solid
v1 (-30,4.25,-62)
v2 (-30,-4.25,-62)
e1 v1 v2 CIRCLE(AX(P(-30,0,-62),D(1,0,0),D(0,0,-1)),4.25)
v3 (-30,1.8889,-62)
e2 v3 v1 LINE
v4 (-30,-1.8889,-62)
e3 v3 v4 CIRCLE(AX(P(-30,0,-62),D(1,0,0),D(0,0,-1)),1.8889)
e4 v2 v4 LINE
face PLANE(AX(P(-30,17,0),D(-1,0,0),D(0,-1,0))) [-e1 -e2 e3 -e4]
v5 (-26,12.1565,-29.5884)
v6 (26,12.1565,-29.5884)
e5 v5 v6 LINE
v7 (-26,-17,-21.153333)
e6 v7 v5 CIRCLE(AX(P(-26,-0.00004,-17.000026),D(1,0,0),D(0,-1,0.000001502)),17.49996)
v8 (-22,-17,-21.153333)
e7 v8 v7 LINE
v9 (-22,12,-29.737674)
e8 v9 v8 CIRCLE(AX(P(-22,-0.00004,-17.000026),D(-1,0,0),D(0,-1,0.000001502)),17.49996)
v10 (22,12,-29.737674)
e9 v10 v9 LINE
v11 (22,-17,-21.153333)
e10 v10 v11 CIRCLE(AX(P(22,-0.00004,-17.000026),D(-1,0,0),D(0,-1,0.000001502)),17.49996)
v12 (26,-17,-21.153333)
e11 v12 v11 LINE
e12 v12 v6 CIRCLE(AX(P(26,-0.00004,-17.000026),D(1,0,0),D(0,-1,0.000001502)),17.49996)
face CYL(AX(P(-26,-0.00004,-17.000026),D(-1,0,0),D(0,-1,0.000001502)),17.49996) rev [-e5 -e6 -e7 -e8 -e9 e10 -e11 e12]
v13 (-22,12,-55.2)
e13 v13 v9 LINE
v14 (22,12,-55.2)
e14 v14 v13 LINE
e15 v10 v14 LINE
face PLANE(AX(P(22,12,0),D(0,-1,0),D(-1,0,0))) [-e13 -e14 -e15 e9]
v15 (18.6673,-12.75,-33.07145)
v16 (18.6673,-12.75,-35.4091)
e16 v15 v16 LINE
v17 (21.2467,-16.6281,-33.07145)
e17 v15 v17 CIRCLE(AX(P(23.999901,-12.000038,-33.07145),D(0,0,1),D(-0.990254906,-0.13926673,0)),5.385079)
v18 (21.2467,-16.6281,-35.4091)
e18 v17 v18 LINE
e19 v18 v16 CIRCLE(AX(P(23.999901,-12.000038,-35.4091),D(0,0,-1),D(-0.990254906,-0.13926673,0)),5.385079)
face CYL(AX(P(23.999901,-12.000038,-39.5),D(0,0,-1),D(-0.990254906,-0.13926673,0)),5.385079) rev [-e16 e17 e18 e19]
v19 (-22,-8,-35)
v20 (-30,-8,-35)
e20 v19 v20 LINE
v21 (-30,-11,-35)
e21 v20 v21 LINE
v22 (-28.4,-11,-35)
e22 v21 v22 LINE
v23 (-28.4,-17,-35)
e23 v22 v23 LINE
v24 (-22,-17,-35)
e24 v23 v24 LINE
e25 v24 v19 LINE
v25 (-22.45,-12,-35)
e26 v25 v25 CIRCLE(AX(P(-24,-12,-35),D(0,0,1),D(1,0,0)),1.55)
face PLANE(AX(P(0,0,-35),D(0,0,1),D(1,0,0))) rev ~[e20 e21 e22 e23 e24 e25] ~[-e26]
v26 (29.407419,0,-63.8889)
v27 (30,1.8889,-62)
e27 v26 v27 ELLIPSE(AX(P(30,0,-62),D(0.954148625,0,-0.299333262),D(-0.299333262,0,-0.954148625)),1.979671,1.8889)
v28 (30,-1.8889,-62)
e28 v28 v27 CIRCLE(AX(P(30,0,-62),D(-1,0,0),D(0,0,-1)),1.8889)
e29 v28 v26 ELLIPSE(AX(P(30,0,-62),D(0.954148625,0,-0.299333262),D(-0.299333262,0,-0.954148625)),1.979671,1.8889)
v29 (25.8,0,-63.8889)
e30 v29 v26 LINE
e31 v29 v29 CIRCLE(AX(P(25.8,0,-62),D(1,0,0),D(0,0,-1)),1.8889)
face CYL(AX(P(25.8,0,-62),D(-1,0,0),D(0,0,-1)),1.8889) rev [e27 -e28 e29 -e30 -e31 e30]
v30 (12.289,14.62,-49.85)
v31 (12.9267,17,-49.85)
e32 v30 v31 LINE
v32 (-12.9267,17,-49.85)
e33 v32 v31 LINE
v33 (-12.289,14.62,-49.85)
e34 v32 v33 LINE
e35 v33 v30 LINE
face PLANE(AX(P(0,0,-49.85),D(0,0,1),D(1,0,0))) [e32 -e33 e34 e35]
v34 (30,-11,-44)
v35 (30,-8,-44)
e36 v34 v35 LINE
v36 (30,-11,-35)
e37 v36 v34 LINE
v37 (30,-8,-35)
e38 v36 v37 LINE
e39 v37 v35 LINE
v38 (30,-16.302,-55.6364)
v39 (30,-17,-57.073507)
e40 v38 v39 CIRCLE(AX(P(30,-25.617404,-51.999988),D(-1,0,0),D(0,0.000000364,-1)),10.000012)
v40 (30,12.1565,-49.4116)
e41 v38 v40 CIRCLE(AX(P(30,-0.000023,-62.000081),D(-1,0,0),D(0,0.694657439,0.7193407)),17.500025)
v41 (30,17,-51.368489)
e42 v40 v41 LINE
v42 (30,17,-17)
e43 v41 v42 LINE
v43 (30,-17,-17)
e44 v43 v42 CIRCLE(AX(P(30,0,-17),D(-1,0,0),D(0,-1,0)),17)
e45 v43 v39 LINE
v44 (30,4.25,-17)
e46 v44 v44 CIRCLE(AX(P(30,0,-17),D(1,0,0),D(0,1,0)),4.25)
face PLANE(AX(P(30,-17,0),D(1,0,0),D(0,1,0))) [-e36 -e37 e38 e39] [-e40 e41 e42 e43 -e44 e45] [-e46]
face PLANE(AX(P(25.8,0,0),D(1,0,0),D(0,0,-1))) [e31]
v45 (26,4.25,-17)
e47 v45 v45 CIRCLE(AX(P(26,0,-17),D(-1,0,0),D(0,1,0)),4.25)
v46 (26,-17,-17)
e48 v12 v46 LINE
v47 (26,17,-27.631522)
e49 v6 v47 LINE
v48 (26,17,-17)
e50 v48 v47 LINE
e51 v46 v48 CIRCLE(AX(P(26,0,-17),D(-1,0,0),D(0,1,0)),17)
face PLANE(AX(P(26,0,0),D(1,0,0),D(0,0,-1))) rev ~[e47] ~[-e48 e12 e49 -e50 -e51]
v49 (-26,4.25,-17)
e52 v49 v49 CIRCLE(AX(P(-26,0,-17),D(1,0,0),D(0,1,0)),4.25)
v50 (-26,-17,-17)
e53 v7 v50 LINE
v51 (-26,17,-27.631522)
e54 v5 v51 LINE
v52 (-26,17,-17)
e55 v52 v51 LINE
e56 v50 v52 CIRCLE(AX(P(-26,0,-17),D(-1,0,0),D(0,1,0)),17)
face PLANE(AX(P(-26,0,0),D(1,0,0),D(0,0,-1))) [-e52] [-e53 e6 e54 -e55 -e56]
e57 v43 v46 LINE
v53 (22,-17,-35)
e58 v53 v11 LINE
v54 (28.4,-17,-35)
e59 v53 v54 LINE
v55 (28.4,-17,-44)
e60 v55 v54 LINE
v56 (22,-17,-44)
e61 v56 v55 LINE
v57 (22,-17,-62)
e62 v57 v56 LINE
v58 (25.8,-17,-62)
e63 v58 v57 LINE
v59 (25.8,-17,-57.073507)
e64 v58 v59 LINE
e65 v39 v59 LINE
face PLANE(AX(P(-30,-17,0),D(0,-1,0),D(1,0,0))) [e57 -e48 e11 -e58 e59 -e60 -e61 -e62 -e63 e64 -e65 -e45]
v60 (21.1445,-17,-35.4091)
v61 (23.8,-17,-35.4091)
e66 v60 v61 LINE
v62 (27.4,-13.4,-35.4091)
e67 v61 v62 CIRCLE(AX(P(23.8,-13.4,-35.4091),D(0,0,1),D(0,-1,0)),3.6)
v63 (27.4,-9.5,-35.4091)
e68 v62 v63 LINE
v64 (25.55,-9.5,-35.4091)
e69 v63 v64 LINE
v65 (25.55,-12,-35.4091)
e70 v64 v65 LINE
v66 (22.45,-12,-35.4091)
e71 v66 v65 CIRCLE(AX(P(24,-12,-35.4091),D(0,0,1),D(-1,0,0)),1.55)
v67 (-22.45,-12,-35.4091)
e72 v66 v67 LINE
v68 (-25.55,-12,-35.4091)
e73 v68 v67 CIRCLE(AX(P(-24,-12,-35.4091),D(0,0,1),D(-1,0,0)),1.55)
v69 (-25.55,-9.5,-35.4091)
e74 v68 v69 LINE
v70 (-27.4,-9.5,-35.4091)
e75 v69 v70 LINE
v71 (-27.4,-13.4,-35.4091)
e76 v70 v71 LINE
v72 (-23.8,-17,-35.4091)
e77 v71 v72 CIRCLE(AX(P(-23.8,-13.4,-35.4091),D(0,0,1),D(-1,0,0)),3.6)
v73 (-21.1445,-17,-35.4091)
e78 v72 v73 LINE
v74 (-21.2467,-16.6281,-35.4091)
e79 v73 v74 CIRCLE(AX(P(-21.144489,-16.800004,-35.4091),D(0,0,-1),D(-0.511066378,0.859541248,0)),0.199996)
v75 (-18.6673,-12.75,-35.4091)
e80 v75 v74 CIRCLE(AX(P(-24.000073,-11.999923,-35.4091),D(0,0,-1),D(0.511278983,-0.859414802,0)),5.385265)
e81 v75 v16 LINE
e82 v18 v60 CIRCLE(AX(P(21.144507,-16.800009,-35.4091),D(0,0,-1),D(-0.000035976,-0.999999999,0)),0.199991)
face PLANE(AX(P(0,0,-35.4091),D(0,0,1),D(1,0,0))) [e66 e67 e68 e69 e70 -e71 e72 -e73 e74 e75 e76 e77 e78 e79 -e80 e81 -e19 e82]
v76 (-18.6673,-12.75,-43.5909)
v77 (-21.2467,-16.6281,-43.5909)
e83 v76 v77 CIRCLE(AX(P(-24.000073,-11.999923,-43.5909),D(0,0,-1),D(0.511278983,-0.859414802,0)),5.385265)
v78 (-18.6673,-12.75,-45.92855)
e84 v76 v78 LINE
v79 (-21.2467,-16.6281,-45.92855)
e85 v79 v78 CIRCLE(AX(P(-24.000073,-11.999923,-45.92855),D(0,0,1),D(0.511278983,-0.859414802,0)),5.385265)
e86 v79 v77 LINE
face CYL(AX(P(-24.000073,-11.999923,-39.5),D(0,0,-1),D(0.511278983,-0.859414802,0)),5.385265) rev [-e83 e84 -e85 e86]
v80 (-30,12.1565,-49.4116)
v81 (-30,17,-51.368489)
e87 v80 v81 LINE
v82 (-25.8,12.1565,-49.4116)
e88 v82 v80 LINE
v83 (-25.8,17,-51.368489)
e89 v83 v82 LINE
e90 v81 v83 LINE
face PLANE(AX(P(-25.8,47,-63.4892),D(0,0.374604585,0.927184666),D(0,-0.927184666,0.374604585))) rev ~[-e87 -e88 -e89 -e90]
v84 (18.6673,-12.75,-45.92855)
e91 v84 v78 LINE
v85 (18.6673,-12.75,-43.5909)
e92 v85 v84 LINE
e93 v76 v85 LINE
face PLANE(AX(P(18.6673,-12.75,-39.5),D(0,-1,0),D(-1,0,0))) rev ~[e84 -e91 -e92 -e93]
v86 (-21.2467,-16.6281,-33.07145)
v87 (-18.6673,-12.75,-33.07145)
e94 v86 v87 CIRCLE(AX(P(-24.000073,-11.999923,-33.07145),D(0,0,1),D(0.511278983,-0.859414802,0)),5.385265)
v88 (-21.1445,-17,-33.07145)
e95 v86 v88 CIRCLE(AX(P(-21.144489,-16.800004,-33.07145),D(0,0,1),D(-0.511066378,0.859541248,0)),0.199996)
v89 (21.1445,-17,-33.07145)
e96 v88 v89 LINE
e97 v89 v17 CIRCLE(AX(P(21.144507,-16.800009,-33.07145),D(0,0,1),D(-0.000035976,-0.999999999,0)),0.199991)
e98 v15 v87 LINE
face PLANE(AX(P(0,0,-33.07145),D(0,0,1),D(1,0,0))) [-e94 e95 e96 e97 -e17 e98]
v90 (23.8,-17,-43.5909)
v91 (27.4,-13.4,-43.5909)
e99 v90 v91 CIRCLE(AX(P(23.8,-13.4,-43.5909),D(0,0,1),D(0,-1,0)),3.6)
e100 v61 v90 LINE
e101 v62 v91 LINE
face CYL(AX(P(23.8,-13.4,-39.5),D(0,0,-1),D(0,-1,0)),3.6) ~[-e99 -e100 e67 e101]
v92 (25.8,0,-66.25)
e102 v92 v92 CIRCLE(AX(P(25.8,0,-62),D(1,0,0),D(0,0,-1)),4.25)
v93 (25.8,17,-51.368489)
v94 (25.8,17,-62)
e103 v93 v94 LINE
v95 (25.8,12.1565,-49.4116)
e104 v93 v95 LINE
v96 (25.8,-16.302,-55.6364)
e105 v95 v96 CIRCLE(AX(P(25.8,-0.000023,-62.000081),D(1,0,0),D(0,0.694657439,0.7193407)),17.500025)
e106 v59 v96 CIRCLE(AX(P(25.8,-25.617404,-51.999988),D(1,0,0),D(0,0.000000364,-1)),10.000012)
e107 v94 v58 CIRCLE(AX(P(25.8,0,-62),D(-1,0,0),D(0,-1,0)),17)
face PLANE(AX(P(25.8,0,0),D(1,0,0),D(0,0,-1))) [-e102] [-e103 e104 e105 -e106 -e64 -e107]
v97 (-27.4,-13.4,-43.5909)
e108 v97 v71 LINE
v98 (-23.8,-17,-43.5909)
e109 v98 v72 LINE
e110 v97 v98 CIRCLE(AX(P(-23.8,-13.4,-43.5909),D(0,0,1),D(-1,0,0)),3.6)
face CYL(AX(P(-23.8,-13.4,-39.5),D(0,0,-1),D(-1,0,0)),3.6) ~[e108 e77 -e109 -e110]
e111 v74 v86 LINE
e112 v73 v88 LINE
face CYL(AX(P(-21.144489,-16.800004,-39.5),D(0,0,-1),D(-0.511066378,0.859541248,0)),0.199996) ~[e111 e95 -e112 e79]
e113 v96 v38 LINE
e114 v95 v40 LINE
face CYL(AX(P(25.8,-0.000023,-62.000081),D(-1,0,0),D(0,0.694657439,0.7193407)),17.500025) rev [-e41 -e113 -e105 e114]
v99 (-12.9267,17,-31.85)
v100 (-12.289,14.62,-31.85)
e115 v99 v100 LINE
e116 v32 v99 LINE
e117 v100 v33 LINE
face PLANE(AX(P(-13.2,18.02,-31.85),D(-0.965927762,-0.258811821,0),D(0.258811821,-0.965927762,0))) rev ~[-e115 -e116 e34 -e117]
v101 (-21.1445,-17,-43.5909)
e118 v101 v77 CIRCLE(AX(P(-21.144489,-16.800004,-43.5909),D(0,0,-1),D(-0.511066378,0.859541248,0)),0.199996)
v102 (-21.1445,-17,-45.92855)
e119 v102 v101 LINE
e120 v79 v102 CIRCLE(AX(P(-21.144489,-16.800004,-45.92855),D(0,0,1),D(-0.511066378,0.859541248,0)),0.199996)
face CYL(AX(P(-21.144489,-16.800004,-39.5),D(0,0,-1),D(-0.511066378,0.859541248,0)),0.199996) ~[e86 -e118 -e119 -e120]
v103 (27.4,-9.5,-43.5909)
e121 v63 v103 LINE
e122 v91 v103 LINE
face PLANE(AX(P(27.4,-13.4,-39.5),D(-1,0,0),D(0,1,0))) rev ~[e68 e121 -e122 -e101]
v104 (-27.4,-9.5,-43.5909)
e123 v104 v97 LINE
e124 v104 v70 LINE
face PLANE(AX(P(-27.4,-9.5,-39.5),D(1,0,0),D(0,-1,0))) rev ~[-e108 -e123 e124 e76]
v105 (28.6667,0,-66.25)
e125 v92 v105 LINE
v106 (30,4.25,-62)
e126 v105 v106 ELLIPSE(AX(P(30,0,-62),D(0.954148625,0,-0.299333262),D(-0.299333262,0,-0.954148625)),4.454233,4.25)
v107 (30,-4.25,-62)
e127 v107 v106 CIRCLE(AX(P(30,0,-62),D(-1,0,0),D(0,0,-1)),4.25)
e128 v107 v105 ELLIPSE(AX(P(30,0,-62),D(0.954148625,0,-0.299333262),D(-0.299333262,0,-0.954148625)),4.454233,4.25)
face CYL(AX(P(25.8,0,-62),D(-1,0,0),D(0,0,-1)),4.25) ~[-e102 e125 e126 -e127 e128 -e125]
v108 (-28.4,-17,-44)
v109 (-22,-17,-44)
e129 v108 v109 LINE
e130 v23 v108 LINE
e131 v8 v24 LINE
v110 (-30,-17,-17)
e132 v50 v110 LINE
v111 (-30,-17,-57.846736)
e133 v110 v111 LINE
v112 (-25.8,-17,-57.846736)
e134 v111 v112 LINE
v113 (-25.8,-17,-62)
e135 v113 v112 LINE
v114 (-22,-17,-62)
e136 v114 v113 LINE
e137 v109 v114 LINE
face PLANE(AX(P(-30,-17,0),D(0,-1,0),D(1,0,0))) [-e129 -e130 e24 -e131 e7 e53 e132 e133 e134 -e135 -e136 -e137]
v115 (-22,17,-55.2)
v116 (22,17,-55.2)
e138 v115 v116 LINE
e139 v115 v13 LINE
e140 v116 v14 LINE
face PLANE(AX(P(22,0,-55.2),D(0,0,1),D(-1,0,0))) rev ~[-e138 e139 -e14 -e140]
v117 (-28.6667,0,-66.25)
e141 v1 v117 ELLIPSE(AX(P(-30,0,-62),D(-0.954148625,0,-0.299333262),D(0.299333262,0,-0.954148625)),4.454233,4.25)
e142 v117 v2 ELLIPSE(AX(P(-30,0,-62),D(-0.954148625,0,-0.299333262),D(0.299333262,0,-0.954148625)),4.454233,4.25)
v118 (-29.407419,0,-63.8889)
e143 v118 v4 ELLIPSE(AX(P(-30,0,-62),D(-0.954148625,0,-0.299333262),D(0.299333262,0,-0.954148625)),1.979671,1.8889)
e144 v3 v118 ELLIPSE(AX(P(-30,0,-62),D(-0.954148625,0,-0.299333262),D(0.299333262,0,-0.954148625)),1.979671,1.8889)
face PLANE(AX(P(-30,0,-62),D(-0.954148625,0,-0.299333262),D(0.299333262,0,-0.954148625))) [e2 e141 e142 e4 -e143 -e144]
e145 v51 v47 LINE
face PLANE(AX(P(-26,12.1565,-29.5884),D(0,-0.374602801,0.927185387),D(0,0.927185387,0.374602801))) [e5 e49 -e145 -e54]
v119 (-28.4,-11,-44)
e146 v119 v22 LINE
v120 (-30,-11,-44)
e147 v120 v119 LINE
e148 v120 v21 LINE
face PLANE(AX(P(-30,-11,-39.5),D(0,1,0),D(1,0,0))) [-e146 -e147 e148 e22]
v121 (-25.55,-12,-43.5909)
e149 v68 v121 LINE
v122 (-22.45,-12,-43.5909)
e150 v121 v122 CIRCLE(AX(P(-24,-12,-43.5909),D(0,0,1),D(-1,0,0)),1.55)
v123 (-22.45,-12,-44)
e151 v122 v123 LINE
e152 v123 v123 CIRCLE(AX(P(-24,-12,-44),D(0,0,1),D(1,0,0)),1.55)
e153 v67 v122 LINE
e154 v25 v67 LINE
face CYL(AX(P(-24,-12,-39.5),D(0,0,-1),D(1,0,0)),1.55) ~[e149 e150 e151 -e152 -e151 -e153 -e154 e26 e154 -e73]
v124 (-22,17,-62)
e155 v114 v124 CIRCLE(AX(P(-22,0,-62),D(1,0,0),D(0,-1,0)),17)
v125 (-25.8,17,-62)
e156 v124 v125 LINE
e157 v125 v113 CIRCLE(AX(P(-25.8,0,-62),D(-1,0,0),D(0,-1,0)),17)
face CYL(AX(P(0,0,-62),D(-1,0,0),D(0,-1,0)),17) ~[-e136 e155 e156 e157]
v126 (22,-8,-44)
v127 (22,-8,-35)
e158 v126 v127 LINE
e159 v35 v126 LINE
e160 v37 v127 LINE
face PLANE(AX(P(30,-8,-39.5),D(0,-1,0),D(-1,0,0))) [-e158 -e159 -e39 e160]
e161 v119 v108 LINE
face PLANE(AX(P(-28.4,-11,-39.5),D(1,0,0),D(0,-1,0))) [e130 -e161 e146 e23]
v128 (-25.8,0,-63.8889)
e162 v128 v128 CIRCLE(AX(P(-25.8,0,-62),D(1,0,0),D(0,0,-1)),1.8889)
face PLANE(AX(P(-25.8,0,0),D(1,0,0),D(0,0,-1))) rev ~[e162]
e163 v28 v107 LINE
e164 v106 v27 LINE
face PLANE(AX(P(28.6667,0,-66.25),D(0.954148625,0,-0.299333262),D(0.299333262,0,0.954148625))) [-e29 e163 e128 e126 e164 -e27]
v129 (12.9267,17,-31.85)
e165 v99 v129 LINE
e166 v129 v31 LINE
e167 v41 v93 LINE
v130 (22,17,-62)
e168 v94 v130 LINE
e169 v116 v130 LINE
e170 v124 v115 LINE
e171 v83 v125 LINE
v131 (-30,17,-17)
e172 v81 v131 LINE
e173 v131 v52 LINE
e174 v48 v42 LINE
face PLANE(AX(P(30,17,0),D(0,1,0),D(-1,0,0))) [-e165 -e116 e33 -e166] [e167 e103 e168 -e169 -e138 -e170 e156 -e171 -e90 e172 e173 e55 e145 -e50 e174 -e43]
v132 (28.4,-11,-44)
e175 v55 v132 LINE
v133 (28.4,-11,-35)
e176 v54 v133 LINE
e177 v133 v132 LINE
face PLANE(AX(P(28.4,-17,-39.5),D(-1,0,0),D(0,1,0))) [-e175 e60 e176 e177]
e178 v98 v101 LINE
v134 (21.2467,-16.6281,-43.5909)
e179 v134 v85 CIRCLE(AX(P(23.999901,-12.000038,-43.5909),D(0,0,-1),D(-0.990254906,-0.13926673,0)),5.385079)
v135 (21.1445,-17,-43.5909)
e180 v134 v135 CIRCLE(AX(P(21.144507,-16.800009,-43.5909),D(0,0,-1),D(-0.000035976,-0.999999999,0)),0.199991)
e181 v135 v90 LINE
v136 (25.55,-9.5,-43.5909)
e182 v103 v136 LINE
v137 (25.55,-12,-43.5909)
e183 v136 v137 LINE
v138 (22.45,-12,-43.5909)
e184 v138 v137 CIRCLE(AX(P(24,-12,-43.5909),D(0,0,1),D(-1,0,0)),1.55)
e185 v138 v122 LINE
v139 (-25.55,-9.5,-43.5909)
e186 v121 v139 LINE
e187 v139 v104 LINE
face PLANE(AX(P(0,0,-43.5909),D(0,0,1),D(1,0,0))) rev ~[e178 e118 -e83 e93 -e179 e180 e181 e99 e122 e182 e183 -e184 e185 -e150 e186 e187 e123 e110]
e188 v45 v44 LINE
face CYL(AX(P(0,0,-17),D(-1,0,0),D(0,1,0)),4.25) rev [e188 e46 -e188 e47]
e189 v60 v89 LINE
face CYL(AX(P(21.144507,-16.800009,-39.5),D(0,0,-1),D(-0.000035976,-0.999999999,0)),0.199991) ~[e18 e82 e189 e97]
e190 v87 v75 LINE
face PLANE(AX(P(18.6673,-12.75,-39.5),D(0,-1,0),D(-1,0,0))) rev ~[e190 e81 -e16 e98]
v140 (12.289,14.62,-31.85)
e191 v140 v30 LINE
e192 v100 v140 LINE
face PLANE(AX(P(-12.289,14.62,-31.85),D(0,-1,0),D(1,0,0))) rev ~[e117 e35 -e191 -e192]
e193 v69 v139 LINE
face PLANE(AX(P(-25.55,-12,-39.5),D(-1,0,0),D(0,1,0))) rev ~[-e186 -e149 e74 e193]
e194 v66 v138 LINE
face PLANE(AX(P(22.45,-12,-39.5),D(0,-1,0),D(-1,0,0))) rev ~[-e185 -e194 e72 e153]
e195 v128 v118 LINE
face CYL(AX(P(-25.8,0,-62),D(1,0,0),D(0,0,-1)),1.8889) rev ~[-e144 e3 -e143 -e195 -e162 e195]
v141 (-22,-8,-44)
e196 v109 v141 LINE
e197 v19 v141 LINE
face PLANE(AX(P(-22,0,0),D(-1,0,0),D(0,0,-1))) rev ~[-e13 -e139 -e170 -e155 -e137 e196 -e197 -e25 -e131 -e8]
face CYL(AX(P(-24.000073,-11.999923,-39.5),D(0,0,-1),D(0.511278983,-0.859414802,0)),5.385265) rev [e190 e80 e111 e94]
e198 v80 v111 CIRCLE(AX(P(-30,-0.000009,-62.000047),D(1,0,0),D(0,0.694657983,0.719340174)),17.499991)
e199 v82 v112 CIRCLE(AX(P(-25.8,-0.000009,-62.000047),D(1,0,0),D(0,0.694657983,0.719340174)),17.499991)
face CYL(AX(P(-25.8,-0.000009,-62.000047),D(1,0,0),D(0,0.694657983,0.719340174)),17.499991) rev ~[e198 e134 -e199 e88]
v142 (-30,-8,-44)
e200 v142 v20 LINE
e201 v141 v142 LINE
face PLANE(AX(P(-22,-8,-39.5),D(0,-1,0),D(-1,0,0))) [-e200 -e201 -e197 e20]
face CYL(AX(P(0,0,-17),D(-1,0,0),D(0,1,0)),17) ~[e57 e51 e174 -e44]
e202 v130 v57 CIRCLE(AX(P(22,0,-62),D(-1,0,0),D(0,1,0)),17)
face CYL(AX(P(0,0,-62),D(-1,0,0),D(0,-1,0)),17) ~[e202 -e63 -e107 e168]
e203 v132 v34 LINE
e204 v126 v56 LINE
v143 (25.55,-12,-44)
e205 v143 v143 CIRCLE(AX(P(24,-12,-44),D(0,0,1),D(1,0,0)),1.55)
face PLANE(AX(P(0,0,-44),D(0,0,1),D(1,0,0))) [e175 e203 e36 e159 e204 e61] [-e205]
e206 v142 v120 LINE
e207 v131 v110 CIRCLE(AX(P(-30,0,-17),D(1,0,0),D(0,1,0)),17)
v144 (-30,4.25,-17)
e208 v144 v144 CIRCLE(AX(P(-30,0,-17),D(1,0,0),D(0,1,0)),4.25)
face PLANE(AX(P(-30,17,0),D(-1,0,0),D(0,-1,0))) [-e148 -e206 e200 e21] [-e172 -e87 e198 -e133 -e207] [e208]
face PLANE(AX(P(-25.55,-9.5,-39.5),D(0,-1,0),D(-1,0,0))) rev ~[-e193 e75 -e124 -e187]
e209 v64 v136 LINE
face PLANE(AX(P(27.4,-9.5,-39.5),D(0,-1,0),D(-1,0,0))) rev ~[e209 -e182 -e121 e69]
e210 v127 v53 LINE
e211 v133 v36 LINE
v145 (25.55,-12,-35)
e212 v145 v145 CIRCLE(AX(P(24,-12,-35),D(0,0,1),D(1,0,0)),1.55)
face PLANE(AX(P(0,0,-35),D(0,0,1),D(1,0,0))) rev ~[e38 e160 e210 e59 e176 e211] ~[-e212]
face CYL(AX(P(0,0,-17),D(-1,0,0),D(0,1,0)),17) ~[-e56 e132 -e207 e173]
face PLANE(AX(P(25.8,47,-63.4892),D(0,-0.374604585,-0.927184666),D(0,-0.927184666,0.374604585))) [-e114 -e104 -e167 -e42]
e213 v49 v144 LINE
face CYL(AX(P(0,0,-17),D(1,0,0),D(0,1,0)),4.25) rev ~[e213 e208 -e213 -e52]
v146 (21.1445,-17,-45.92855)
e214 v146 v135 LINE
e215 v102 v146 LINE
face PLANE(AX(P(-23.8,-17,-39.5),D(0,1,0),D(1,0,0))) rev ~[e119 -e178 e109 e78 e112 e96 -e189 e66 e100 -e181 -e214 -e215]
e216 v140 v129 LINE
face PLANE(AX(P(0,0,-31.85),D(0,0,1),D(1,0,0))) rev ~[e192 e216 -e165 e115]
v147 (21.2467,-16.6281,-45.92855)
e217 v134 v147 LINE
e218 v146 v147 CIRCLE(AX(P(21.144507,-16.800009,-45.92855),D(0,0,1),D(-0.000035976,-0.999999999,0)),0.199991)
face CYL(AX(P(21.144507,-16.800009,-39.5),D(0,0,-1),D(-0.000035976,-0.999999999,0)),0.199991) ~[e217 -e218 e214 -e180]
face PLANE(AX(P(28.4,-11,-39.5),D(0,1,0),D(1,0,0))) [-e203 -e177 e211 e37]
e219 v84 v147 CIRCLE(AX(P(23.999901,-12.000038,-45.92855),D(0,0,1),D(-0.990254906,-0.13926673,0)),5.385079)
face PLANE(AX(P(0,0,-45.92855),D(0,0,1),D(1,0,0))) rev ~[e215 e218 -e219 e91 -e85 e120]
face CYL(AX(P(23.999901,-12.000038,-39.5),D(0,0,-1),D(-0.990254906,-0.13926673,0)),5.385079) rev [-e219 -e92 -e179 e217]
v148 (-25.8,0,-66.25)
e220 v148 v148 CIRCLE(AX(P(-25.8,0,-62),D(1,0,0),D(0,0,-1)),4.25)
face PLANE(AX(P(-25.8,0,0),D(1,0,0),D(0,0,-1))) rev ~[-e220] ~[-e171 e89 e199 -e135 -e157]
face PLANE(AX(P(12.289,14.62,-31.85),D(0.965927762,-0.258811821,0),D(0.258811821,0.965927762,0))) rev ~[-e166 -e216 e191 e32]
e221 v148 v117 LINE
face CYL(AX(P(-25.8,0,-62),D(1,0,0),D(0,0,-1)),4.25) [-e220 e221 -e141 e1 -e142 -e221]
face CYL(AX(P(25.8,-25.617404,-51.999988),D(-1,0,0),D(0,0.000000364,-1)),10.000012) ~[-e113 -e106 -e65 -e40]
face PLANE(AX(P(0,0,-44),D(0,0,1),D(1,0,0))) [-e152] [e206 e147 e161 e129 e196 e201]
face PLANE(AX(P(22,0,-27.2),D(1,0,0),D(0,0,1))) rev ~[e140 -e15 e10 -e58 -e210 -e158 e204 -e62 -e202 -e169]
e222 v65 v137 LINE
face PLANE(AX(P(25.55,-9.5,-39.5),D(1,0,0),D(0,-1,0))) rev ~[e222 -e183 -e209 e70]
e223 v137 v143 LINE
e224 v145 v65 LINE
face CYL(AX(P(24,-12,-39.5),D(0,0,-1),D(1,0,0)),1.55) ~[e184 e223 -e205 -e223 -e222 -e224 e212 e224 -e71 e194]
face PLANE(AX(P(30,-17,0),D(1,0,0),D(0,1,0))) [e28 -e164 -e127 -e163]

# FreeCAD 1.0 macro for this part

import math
import FreeCAD as App
import Part
import Sketcher

V = App.Vector
Q = App.Units.Quantity


def add_polygon(sketch, points):
    """Adds a closed chain of lines whose ends are joined by coincident constraints."""
    first, n = sketch.GeometryCount, len(points)
    for a, b in zip(points, points[1:] + points[:1]):
        sketch.addGeometry(Part.LineSegment(App.Vector(*a, 0), App.Vector(*b, 0)), False)
    for i in range(n):
        sketch.addConstraint(Sketcher.Constraint("Coincident", first + i, 2, first + (i + 1) % n, 1))

doc = App.newDocument("Part")
body = doc.addObject("PartDesign::Body", "Body")

# Sketch on XY plane
sketch1 = body.newObject("Sketcher::SketchObject", "Sketch")
sketch1.AttachmentSupport = (doc.getObject("XY_Plane"), [""])
sketch1.MapMode = "FlatFace"
add_polygon(sketch1, [(30, 17), (-30, 17), (-30, -17), (30, -17)])  # lines 0-3
sketch1.addConstraint([
    Sketcher.Constraint("Horizontal", 0),
    Sketcher.Constraint("Vertical", 1),
    Sketcher.Constraint("Horizontal", 2),
    Sketcher.Constraint("Vertical", 3),
    Sketcher.Constraint("Symmetric", 0, 2, 2, 2, -1, 1),
    Sketcher.Constraint("DistanceX", 0, 2, 0, 1, Q("60 mm")),
    Sketcher.Constraint("DistanceY", 1, 2, 1, 1, Q("34 mm")),
])
pad1 = body.newObject("PartDesign::Pad", "Pad")
pad1.Profile = sketch1
pad1.Length = 79
pad1.Reversed = True

# Sketch on XY plane
sketch2 = body.newObject("Sketcher::SketchObject", "Sketch001")
sketch2.AttachmentSupport = (doc.getObject("XY_Plane"), [""])
sketch2.MapMode = "FlatFace"
add_polygon(sketch2, [(22, 12), (-22, 12), (-22, -17), (22, -17)])  # lines 0-3
sketch2.addConstraint([
    Sketcher.Constraint("Horizontal", 0),
    Sketcher.Constraint("Vertical", 1),
    Sketcher.Constraint("Horizontal", 2),
    Sketcher.Constraint("Vertical", 3),
    Sketcher.Constraint("DistanceX", 0, 2, 0, 1, Q("44 mm")),
    Sketcher.Constraint("DistanceY", 1, 2, 1, 1, Q("29 mm")),
    Sketcher.Constraint("DistanceX", 0, 2, -1, 1, Q("22 mm")),
    Sketcher.Constraint("DistanceY", -1, 1, 0, 2, Q("12 mm")),
])
pocket1 = body.newObject("PartDesign::Pocket", "Pocket")
pocket1.Profile = sketch2
pocket1.Length = 158
pocket1.Midplane = True

# Sketch on XY plane
sketch3 = body.newObject("Sketcher::SketchObject", "Sketch002")
sketch3.AttachmentSupport = (doc.getObject("XY_Plane"), [""])
sketch3.MapMode = "FlatFace"
sketch3.AttachmentOffset = App.Placement(V(0, 0, -31.85), App.Rotation())
add_polygon(sketch3, [(13.2, 18), (-13.2, 18), (-12.3, 14.6), (12.3, 14.6)])  # lines 0-3
sketch3.addConstraint([
    Sketcher.Constraint("Horizontal", 0),
    Sketcher.Constraint("Horizontal", 2),
    Sketcher.Constraint("Equal", 1, 3),
    Sketcher.Constraint("Angle", 1, Q("-75.0004 deg")),
    Sketcher.Constraint("DistanceX", 0, 2, 0, 1, Q("26.4 mm")),
    Sketcher.Constraint("DistanceX", 0, 2, -1, 1, Q("13.2 mm")),
    Sketcher.Constraint("DistanceY", 1, 2, 0, 2, Q("3.4 mm")),
    Sketcher.Constraint("DistanceY", -1, 1, 0, 2, Q("18.02 mm")),
])
pocket2 = body.newObject("PartDesign::Pocket", "Pocket001")
pocket2.Profile = sketch3
pocket2.Length = 18

# Sketch on XZ plane
sketch4 = body.newObject("Sketcher::SketchObject", "Sketch003")
sketch4.AttachmentSupport = (doc.getObject("XZ_Plane"), [""])
sketch4.MapMode = "FlatFace"
add_polygon(sketch4, [(-60, -120), (-60, 60), (60, 60), (60, -120)])  # lines 0-3
add_polygon(sketch4, [(-22, 0), (-30, 0), (-30, -79), (-22, -79), (-22, -55), (22, -55), (22, -79), (30, -79), (30, 0), (22, 0), (22, -27), (-22, -27)])  # lines 4-15
sketch4.addConstraint([
    Sketcher.Constraint("Vertical", 0),
    Sketcher.Constraint("Horizontal", 1),
    Sketcher.Constraint("Vertical", 2),
    Sketcher.Constraint("Horizontal", 3),
    Sketcher.Constraint("Horizontal", 4),
    Sketcher.Constraint("Vertical", 5),
    Sketcher.Constraint("Horizontal", 6),
    Sketcher.Constraint("Vertical", 7),
    Sketcher.Constraint("Horizontal", 8),
    Sketcher.Constraint("Vertical", 9),
    Sketcher.Constraint("Horizontal", 10),
    Sketcher.Constraint("Vertical", 11),
    Sketcher.Constraint("Horizontal", 12),
    Sketcher.Constraint("Vertical", 13),
    Sketcher.Constraint("Horizontal", 14),
    Sketcher.Constraint("Vertical", 15),
    Sketcher.Constraint("Symmetric", 4, 2, 11, 2, -1, 1),
    Sketcher.Constraint("Symmetric", 6, 2, 9, 2, -2),
    Sketcher.Constraint("Symmetric", 12, 2, 15, 2, -2),
    Sketcher.Constraint("Vertical", 9, 2, 12, 2),
    Sketcher.Constraint("DistanceX", 1, 1, 1, 2, Q("120 mm")),
    Sketcher.Constraint("DistanceX", 4, 2, 4, 1, Q("8 mm")),
    Sketcher.Constraint("DistanceX", 8, 1, 8, 2, Q("44 mm")),
    Sketcher.Constraint("DistanceY", 0, 1, 0, 2, Q("180 mm")),
    Sketcher.Constraint("DistanceY", 5, 2, 5, 1, Q("79 mm")),
    Sketcher.Constraint("DistanceY", 7, 1, 7, 2, Q("23.8 mm")),
    Sketcher.Constraint("DistanceY", 13, 2, 13, 1, Q("27.2 mm")),
    Sketcher.Constraint("DistanceX", 0, 2, -1, 1, Q("60 mm")),
    Sketcher.Constraint("DistanceY", -1, 1, 0, 2, Q("60 mm")),
])
pocket3 = body.newObject("PartDesign::Pocket", "Pocket002")
pocket3.Profile = sketch4
pocket3.Length = 158
pocket3.Midplane = True

# Sketch on YZ plane
sketch5 = body.newObject("Sketcher::SketchObject", "Sketch004")
sketch5.AttachmentSupport = (doc.getObject("YZ_Plane"), [""])
sketch5.MapMode = "FlatFace"
add_polygon(sketch5, [(45, -90), (45, 45), (-45, 45), (-45, -90)])  # lines 0-3
sketch5.addGeometry(Part.ArcOfCircle(Part.Circle(V(0, -17, 0), V(0, 0, 1), 17), math.radians(0), math.radians(180)), False)  # 4
sketch5.addGeometry(Part.LineSegment(V(17, -17, 0), V(17, -62, 0)), False)  # 5
sketch5.addGeometry(Part.ArcOfCircle(Part.Circle(V(0, -62, 0), V(0, 0, 1), 17), math.radians(180), math.radians(360)), False)  # 6
sketch5.addGeometry(Part.LineSegment(V(-17, -62, 0), V(-17, -17, 0)), False)  # 7
sketch5.addConstraint([
    Sketcher.Constraint("Tangent", 4, 1, 5, 1),
    Sketcher.Constraint("Tangent", 5, 2, 6, 2),
    Sketcher.Constraint("Tangent", 6, 1, 7, 1),
    Sketcher.Constraint("Tangent", 7, 2, 4, 2),
    Sketcher.Constraint("Vertical", 0),
    Sketcher.Constraint("Horizontal", 1),
    Sketcher.Constraint("Vertical", 2),
    Sketcher.Constraint("Horizontal", 3),
    Sketcher.Constraint("Vertical", 5),
    Sketcher.Constraint("Vertical", 7),
    Sketcher.Constraint("PointOnObject", 4, 3, -2),
    Sketcher.Constraint("Radius", 4, Q("17 mm")),
    Sketcher.Constraint("DistanceX", 1, 2, 1, 1, Q("90 mm")),
    Sketcher.Constraint("DistanceY", 0, 1, 0, 2, Q("135 mm")),
    Sketcher.Constraint("DistanceY", 5, 2, 5, 1, Q("45 mm")),
    Sketcher.Constraint("DistanceY", 4, 3, -1, 1, Q("17 mm")),
    Sketcher.Constraint("DistanceX", -1, 1, 0, 2, Q("45 mm")),
    Sketcher.Constraint("DistanceY", -1, 1, 0, 2, Q("45 mm")),
])
pocket4 = body.newObject("PartDesign::Pocket", "Pocket003")
pocket4.Profile = sketch5
pocket4.Length = 60
pocket4.Midplane = True

# Sketch on YZ plane
sketch6 = body.newObject("Sketcher::SketchObject", "Sketch005")
sketch6.AttachmentSupport = (doc.getObject("YZ_Plane"), [""])
sketch6.MapMode = "FlatFace"
sketch6.AttachmentOffset = App.Placement(V(0, 0, -25.8), App.Rotation())
sketch6.addGeometry([
    Part.LineSegment(V(47, -63.5, 0), V(12.2, -49.4, 0)),  # 0
    Part.ArcOfCircle(Part.Circle(V(0, -62, 0), V(0, 0, 1), 17.5), math.radians(46), math.radians(180)),  # 1
    Part.LineSegment(V(-17.5, -62, 0), V(-56, -62, 0)),  # 2
    Part.LineSegment(V(-56, -62, 0), V(-56, -89.4, 0)),  # 3
    Part.LineSegment(V(-56, -89.4, 0), V(47, -89.4, 0)),  # 4
    Part.LineSegment(V(47, -89.4, 0), V(47, -63.5, 0)),  # 5
    Part.Circle(V(0, -62, 0), V(0, 0, 1), 4.2),  # 6
], False)
sketch6.addConstraint([
    Sketcher.Constraint("Coincident", 0, 2, 1, 1),
    Sketcher.Constraint("Coincident", 1, 2, 2, 1),
    Sketcher.Constraint("Coincident", 2, 2, 3, 1),
    Sketcher.Constraint("Coincident", 3, 2, 4, 1),
    Sketcher.Constraint("Coincident", 4, 2, 5, 1),
    Sketcher.Constraint("Coincident", 5, 2, 0, 1),
    Sketcher.Constraint("Horizontal", 2),
    Sketcher.Constraint("Vertical", 3),
    Sketcher.Constraint("Horizontal", 4),
    Sketcher.Constraint("Vertical", 5),
    Sketcher.Constraint("Coincident", 6, 3, 1, 3),
    Sketcher.Constraint("PointOnObject", 1, 3, -2),
    Sketcher.Constraint("Horizontal", 6, 3, 1, 2),
    Sketcher.Constraint("Diameter", 6, Q("8.5 mm")),
    Sketcher.Constraint("Radius", 1, Q("17.5 mm")),
    Sketcher.Constraint("DistanceX", 4, 1, 4, 2, Q("103 mm")),
    Sketcher.Constraint("Angle", 0, Q("158.0001 deg")),
    Sketcher.Constraint("DistanceX", 2, 2, 2, 1, Q("38.5 mm")),
    Sketcher.Constraint("DistanceY", 3, 2, 3, 1, Q("27.4 mm")),
    Sketcher.Constraint("DistanceY", 1, 3, -1, 1, Q("62 mm")),
    Sketcher.Constraint("Distance", 0, Q("37.58 mm")),
])
pocket5 = body.newObject("PartDesign::Pocket", "Pocket004")
pocket5.Profile = sketch6
pocket5.Length = 15

# Sketch on YZ plane
sketch7 = body.newObject("Sketcher::SketchObject", "Sketch006")
sketch7.AttachmentSupport = (doc.getObject("YZ_Plane"), [""])
sketch7.MapMode = "FlatFace"
sketch7.AttachmentOffset = App.Placement(V(0, 0, -25.8), App.Rotation())
sketch7.addGeometry(Part.Circle(V(0, -62, 0), V(0, 0, 1), 1.9), False)
sketch7.addConstraint([
    Sketcher.Constraint("PointOnObject", 0, 3, -2),
    Sketcher.Constraint("DistanceY", 0, 3, -1, 1, Q("62 mm")),
    Sketcher.Constraint("Diameter", 0, Q("3.7778 mm")),
])
pocket6 = body.newObject("PartDesign::Pocket", "Pocket005")
pocket6.Profile = sketch7
pocket6.Length = 15

# Sketch on YZ plane
sketch8 = body.newObject("Sketcher::SketchObject", "Sketch007")
sketch8.AttachmentSupport = (doc.getObject("YZ_Plane"), [""])
sketch8.MapMode = "FlatFace"
sketch8.addGeometry(Part.Circle(V(0, -17, 0), V(0, 0, 1), 4.2), False)
sketch8.addConstraint([
    Sketcher.Constraint("PointOnObject", 0, 3, -2),
    Sketcher.Constraint("Diameter", 0, Q("8.5 mm")),
    Sketcher.Constraint("DistanceY", 0, 3, -1, 1, Q("17 mm")),
])
pocket7 = body.newObject("PartDesign::Pocket", "Pocket006")
pocket7.Profile = sketch8
pocket7.Length = 60
pocket7.Midplane = True

# Sketch on YZ plane
sketch9 = body.newObject("Sketcher::SketchObject", "Sketch008")
sketch9.AttachmentSupport = (doc.getObject("YZ_Plane"), [""])
sketch9.MapMode = "FlatFace"
sketch9.AttachmentOffset = App.Placement(V(0, 0, -26), App.Rotation())
sketch9.addGeometry([
    Part.LineSegment(V(32, 3, 0), V(-51, 3, 0)),  # 0
    Part.LineSegment(V(-51, 3, 0), V(-51, -17, 0)),  # 1
    Part.LineSegment(V(-51, -17, 0), V(-18, -17, 0)),  # 2
    Part.ArcOfCircle(Part.Circle(V(0, -17, 0), V(0, 0, 1), 18), math.radians(180), math.radians(314)),  # 3
    Part.LineSegment(V(12, -30, 0), V(32, -22, 0)),  # 4
    Part.LineSegment(V(32, -22, 0), V(32, 3, 0)),  # 5
], False)
sketch9.addConstraint([
    Sketcher.Constraint("Coincident", 0, 2, 1, 1),
    Sketcher.Constraint("Coincident", 1, 2, 2, 1),
    Sketcher.Constraint("Coincident", 2, 2, 3, 1),
    Sketcher.Constraint("Coincident", 3, 2, 4, 1),
    Sketcher.Constraint("Coincident", 4, 2, 5, 1),
    Sketcher.Constraint("Coincident", 5, 2, 0, 1),
    Sketcher.Constraint("Horizontal", 0),
    Sketcher.Constraint("Vertical", 1),
    Sketcher.Constraint("Horizontal", 2),
    Sketcher.Constraint("Vertical", 5),
    Sketcher.Constraint("PointOnObject", 3, 3, -2),
    Sketcher.Constraint("Horizontal", 3, 3, 1, 2),
    Sketcher.Constraint("Radius", 3, Q("17.5 mm")),
    Sketcher.Constraint("DistanceX", 0, 2, 0, 1, Q("83 mm")),
    Sketcher.Constraint("Angle", 4, Q("21.9998 deg")),
    Sketcher.Constraint("DistanceX", 2, 1, 2, 2, Q("33.5 mm")),
    Sketcher.Constraint("DistanceY", 1, 2, 1, 1, Q("20.4 mm")),
    Sketcher.Constraint("DistanceY", 3, 3, -1, 1, Q("17 mm")),
    Sketcher.Constraint("DistanceY", 5, 1, 5, 2, Q("24.9712 mm")),
])
pocket8 = body.newObject("PartDesign::Pocket", "Pocket007")
pocket8.Profile = sketch9
pocket8.Length = 52
pocket8.Reversed = True

# Sketch on YZ plane
sketch10 = body.newObject("Sketcher::SketchObject", "Sketch009")
sketch10.AttachmentSupport = (doc.getObject("YZ_Plane"), [""])
sketch10.MapMode = "FlatFace"
sketch10.AttachmentOffset = App.Placement(V(0, 0, 25.8), App.Rotation())
sketch10.addGeometry([
    Part.LineSegment(V(47, -63.5, 0), V(12.2, -49.4, 0)),  # 0
    Part.ArcOfCircle(Part.Circle(V(0, -62, 0), V(0, 0, 1), 17.5), math.radians(46), math.radians(159)),  # 1
    Part.ArcOfCircle(Part.Circle(V(-25.6, -52, 0), V(0, 0, 1), 10), math.radians(-90), math.radians(-21)),  # 2
    Part.LineSegment(V(-25.6, -62, 0), V(-56, -62, 0)),  # 3
    Part.LineSegment(V(-56, -62, 0), V(-56, -89.4, 0)),  # 4
    Part.LineSegment(V(-56, -89.4, 0), V(47, -89.4, 0)),  # 5
    Part.LineSegment(V(47, -89.4, 0), V(47, -63.5, 0)),  # 6
    Part.Circle(V(0, -62, 0), V(0, 0, 1), 4.2),  # 7
], False)
sketch10.addConstraint([
    Sketcher.Constraint("Coincident", 0, 2, 1, 1),
    Sketcher.Constraint("Tangent", 1, 2, 2, 2),
    Sketcher.Constraint("Tangent", 2, 1, 3, 1),
    Sketcher.Constraint("Coincident", 3, 2, 4, 1),
    Sketcher.Constraint("Coincident", 4, 2, 5, 1),
    Sketcher.Constraint("Coincident", 5, 2, 6, 1),
    Sketcher.Constraint("Coincident", 6, 2, 0, 1),
    Sketcher.Constraint("Horizontal", 3),
    Sketcher.Constraint("Vertical", 4),
    Sketcher.Constraint("Horizontal", 5),
    Sketcher.Constraint("Vertical", 6),
    Sketcher.Constraint("Coincident", 7, 3, 1, 3),
    Sketcher.Constraint("PointOnObject", 1, 3, -2),
    Sketcher.Constraint("Horizontal", 7, 3, 2, 1),
    Sketcher.Constraint("Radius", 2, Q("10 mm")),
    Sketcher.Constraint("Diameter", 7, Q("8.5 mm")),
    Sketcher.Constraint("Radius", 1, Q("17.5 mm")),
    Sketcher.Constraint("DistanceX", 5, 1, 5, 2, Q("103 mm")),
    Sketcher.Constraint("Angle", 0, Q("158.0001 deg")),
    Sketcher.Constraint("DistanceY", 4, 2, 4, 1, Q("27.4 mm")),
    Sketcher.Constraint("DistanceY", 1, 3, -1, 1, Q("62 mm")),
    Sketcher.Constraint("DistanceX", 3, 2, -1, 1, Q("56 mm")),
    Sketcher.Constraint("Distance", 0, Q("37.58 mm")),
])
pocket9 = body.newObject("PartDesign::Pocket", "Pocket008")
pocket9.Profile = sketch10
pocket9.Length = 15
pocket9.Reversed = True

# Sketch on YZ plane
sketch11 = body.newObject("Sketcher::SketchObject", "Sketch010")
sketch11.AttachmentSupport = (doc.getObject("YZ_Plane"), [""])
sketch11.MapMode = "FlatFace"
sketch11.AttachmentOffset = App.Placement(V(0, 0, 25.8), App.Rotation())
sketch11.addGeometry(Part.Circle(V(0, -62, 0), V(0, 0, 1), 1.9), False)
sketch11.addConstraint([
    Sketcher.Constraint("PointOnObject", 0, 3, -2),
    Sketcher.Constraint("DistanceY", 0, 3, -1, 1, Q("62 mm")),
    Sketcher.Constraint("Diameter", 0, Q("3.7778 mm")),
])
pocket10 = body.newObject("PartDesign::Pocket", "Pocket009")
pocket10.Profile = sketch11
pocket10.Length = 15
pocket10.Reversed = True

# Sketch on XY plane
sketch12 = body.newObject("Sketcher::SketchObject", "Sketch011")
sketch12.AttachmentSupport = (doc.getObject("XY_Plane"), [""])
sketch12.MapMode = "FlatFace"
sketch12.AttachmentOffset = App.Placement(V(0, 0, -39.5), App.Rotation())
add_polygon(sketch12, [(-22, -8), (-30, -8), (-30, -11), (-28.4, -11), (-28.4, -17), (-22, -17)])  # lines 0-5
sketch12.addGeometry(Part.Circle(V(-24, -12, 0), V(0, 0, 1), 1.6), False)  # 6
sketch12.addConstraint([
    Sketcher.Constraint("Horizontal", 0),
    Sketcher.Constraint("Vertical", 1),
    Sketcher.Constraint("Horizontal", 2),
    Sketcher.Constraint("Vertical", 3),
    Sketcher.Constraint("Horizontal", 4),
    Sketcher.Constraint("Vertical", 5),
    Sketcher.Constraint("Diameter", 6, Q("3.1 mm")),
    Sketcher.Constraint("DistanceX", 0, 2, 0, 1, Q("8 mm")),
    Sketcher.Constraint("DistanceY", 1, 2, 1, 1, Q("3 mm")),
    Sketcher.Constraint("DistanceY", 3, 2, 3, 1, Q("6 mm")),
    Sketcher.Constraint("DistanceX", 2, 1, 2, 2, Q("1.6 mm")),
    Sketcher.Constraint("DistanceX", 6, 3, -1, 1, Q("24 mm")),
    Sketcher.Constraint("DistanceY", 6, 3, -1, 1, Q("12 mm")),
    Sketcher.Constraint("DistanceX", 0, 2, -1, 1, Q("30 mm")),
    Sketcher.Constraint("DistanceY", 0, 2, -1, 1, Q("8 mm")),
])
pocket11 = body.newObject("PartDesign::Pocket", "Pocket010")
pocket11.Profile = sketch12
pocket11.Length = 9
pocket11.Midplane = True

# Sketch on XY plane
sketch13 = body.newObject("Sketcher::SketchObject", "Sketch012")
sketch13.AttachmentSupport = (doc.getObject("XY_Plane"), [""])
sketch13.MapMode = "FlatFace"
sketch13.AttachmentOffset = App.Placement(V(0, 0, -39.5), App.Rotation())
add_polygon(sketch13, [(30, -8), (22, -8), (22, -17), (28.4, -17), (28.4, -11), (30, -11)])  # lines 0-5
sketch13.addGeometry(Part.Circle(V(24, -12, 0), V(0, 0, 1), 1.6), False)  # 6
sketch13.addConstraint([
    Sketcher.Constraint("Horizontal", 0),
    Sketcher.Constraint("Vertical", 1),
    Sketcher.Constraint("Horizontal", 2),
    Sketcher.Constraint("Vertical", 3),
    Sketcher.Constraint("Horizontal", 4),
    Sketcher.Constraint("Vertical", 5),
    Sketcher.Constraint("Diameter", 6, Q("3.1 mm")),
    Sketcher.Constraint("DistanceX", 0, 2, 0, 1, Q("8 mm")),
    Sketcher.Constraint("DistanceY", 1, 2, 1, 1, Q("9 mm")),
    Sketcher.Constraint("DistanceY", 3, 1, 3, 2, Q("6 mm")),
    Sketcher.Constraint("DistanceX", 2, 1, 2, 2, Q("6.4 mm")),
    Sketcher.Constraint("DistanceX", -1, 1, 6, 3, Q("24 mm")),
    Sketcher.Constraint("DistanceY", 6, 3, -1, 1, Q("12 mm")),
    Sketcher.Constraint("DistanceX", -1, 1, 0, 2, Q("22 mm")),
    Sketcher.Constraint("DistanceY", 0, 2, -1, 1, Q("8 mm")),
])
pocket12 = body.newObject("PartDesign::Pocket", "Pocket011")
pocket12.Profile = sketch13
pocket12.Length = 9
pocket12.Midplane = True

# Sketch on XZ plane
sketch14 = body.newObject("Sketcher::SketchObject", "Sketch013")
sketch14.AttachmentSupport = (doc.getObject("XZ_Plane"), [""])
sketch14.MapMode = "FlatFace"
add_polygon(sketch14, [(30, -66.2), (28.7, -66.2), (30, -62)])  # lines 0-2
sketch14.addConstraint([
    Sketcher.Constraint("Horizontal", 0),
    Sketcher.Constraint("Vertical", 2),
    Sketcher.Constraint("DistanceX", -1, 1, 1, 2, Q("30 mm")),
    Sketcher.Constraint("DistanceY", 1, 2, -1, 1, Q("62 mm")),
    Sketcher.Constraint("DistanceY", 2, 2, 2, 1, Q("4.25 mm")),
    Sketcher.Constraint("DistanceX", 0, 2, 0, 1, Q("1.3333 mm")),
])
pocket13 = body.newObject("PartDesign::Pocket", "Pocket012")
pocket13.Profile = sketch14
pocket13.Length = 8.5
pocket13.Midplane = True

# Sketch on XZ plane
sketch15 = body.newObject("Sketcher::SketchObject", "Sketch014")
sketch15.AttachmentSupport = (doc.getObject("XZ_Plane"), [""])
sketch15.MapMode = "FlatFace"
add_polygon(sketch15, [(-30, -66.2), (-30, -62), (-28.7, -66.2)])  # lines 0-2
sketch15.addConstraint([
    Sketcher.Constraint("Vertical", 0),
    Sketcher.Constraint("Horizontal", 2),
    Sketcher.Constraint("DistanceX", 0, 2, -1, 1, Q("30 mm")),
    Sketcher.Constraint("DistanceY", 0, 2, -1, 1, Q("62 mm")),
    Sketcher.Constraint("DistanceY", 0, 1, 0, 2, Q("4.25 mm")),
    Sketcher.Constraint("DistanceX", 2, 2, 2, 1, Q("1.3333 mm")),
])
pocket14 = body.newObject("PartDesign::Pocket", "Pocket013")
pocket14.Profile = sketch15
pocket14.Length = 8.5
pocket14.Midplane = True

# Sketch on XY plane
sketch16 = body.newObject("Sketcher::SketchObject", "Sketch015")
sketch16.AttachmentSupport = (doc.getObject("XY_Plane"), [""])
sketch16.MapMode = "FlatFace"
sketch16.AttachmentOffset = App.Placement(V(0, 0, -39.5), App.Rotation())
sketch16.addGeometry([
    Part.LineSegment(V(-25.6, -9.5, 0), V(-27.4, -9.5, 0)),  # 0
    Part.LineSegment(V(-27.4, -9.5, 0), V(-27.4, -13.4, 0)),  # 1
    Part.ArcOfCircle(Part.Circle(V(-23.8, -13.4, 0), V(0, 0, 1), 3.6), math.radians(180), math.radians(270)),  # 2
    Part.LineSegment(V(-23.8, -17, 0), V(23.8, -17, 0)),  # 3
    Part.ArcOfCircle(Part.Circle(V(23.8, -13.4, 0), V(0, 0, 1), 3.6), math.radians(-90), math.radians(0)),  # 4
    Part.LineSegment(V(27.4, -13.4, 0), V(27.4, -9.5, 0)),  # 5
    Part.LineSegment(V(27.4, -9.5, 0), V(25.6, -9.5, 0)),  # 6
    Part.LineSegment(V(25.6, -9.5, 0), V(25.6, -12, 0)),  # 7
    Part.ArcOfCircle(Part.Circle(V(24, -12, 0), V(0, 0, 1), 1.6), math.radians(180), math.radians(360)),  # 8
    Part.LineSegment(V(22.4, -12, 0), V(-22.4, -12, 0)),  # 9
    Part.ArcOfCircle(Part.Circle(V(-24, -12, 0), V(0, 0, 1), 1.6), math.radians(180), math.radians(360)),  # 10
    Part.LineSegment(V(-25.6, -12, 0), V(-25.6, -9.5, 0)),  # 11
], False)
sketch16.addConstraint([
    Sketcher.Constraint("Coincident", 0, 2, 1, 1),
    Sketcher.Constraint("Tangent", 1, 2, 2, 1),
    Sketcher.Constraint("Tangent", 2, 2, 3, 1),
    Sketcher.Constraint("Tangent", 3, 2, 4, 1),
    Sketcher.Constraint("Tangent", 4, 2, 5, 1),
    Sketcher.Constraint("Coincident", 5, 2, 6, 1),
    Sketcher.Constraint("Coincident", 6, 2, 7, 1),
    Sketcher.Constraint("Tangent", 7, 2, 8, 2),
    Sketcher.Constraint("Coincident", 8, 1, 9, 1),
    Sketcher.Constraint("Coincident", 9, 2, 10, 2),
    Sketcher.Constraint("Tangent", 10, 1, 11, 1),
    Sketcher.Constraint("Coincident", 11, 2, 0, 1),
    Sketcher.Constraint("Horizontal", 0),
    Sketcher.Constraint("Vertical", 1),
    Sketcher.Constraint("Horizontal", 3),
    Sketcher.Constraint("Vertical", 5),
    Sketcher.Constraint("Horizontal", 6),
    Sketcher.Constraint("Vertical", 7),
    Sketcher.Constraint("Horizontal", 9),
    Sketcher.Constraint("Vertical", 11),
    Sketcher.Constraint("Equal", 2, 4),
    Sketcher.Constraint("Equal", 8, 10),
    Sketcher.Constraint("Symmetric", 8, 3, 10, 3, -2),
    Sketcher.Constraint("Symmetric", 0, 2, 5, 2, -2),
    Sketcher.Constraint("Horizontal", 7, 2, 8, 1),
    Sketcher.Constraint("Radius", 2, Q("3.6 mm")),
    Sketcher.Constraint("Radius", 8, Q("1.55 mm")),
    Sketcher.Constraint("DistanceX", 3, 1, 3, 2, Q("47.6 mm")),
    Sketcher.Constraint("DistanceX", 9, 2, 9, 1, Q("44.9 mm")),
    Sketcher.Constraint("DistanceY", 1, 2, 1, 1, Q("3.9 mm")),
    Sketcher.Constraint("DistanceY", 7, 2, 7, 1, Q("2.5 mm")),
    Sketcher.Constraint("DistanceY", 8, 3, -1, 1, Q("12 mm")),
])
pad2 = body.newObject("PartDesign::Pad", "Pad001")
pad2.Profile = sketch16
pad2.Length = 8.1818
pad2.Midplane = True

# Sketch on XY plane
sketch17 = body.newObject("Sketcher::SketchObject", "Sketch016")
sketch17.AttachmentSupport = (doc.getObject("XY_Plane"), [""])
sketch17.MapMode = "FlatFace"
sketch17.AttachmentOffset = App.Placement(V(0, 0, -39.5), App.Rotation())
sketch17.addGeometry([
    Part.ArcOfCircle(Part.Circle(V(-24, -12, 0), V(0, 0, 1), 5.39), math.radians(-59), math.radians(-8)),  # 0
    Part.ArcOfCircle(Part.Circle(V(-21.14, -16.8, 0), V(0, 0, 1), 0.2), math.radians(121), math.radians(270)),  # 1
    Part.LineSegment(V(-21.14, -17, 0), V(21.14, -17, 0)),  # 2
    Part.ArcOfCircle(Part.Circle(V(21.14, -16.8, 0), V(0, 0, 1), 0.2), math.radians(-90), math.radians(59)),  # 3
    Part.ArcOfCircle(Part.Circle(V(24, -12, 0), V(0, 0, 1), 5.39), math.radians(-172), math.radians(-121)),  # 4
    Part.LineSegment(V(18.67, -12.75, 0), V(-18.67, -12.75, 0)),  # 5
], False)
sketch17.addConstraint([
    Sketcher.Constraint("Tangent", 0, 1, 1, 1),
    Sketcher.Constraint("Tangent", 1, 2, 2, 1),
    Sketcher.Constraint("Tangent", 2, 2, 3, 1),
    Sketcher.Constraint("Tangent", 3, 2, 4, 2),
    Sketcher.Constraint("Coincident", 4, 1, 5, 1),
    Sketcher.Constraint("Coincident", 5, 2, 0, 2),
    Sketcher.Constraint("Horizontal", 2),
    Sketcher.Constraint("Horizontal", 5),
    Sketcher.Constraint("Equal", 1, 3),
    Sketcher.Constraint("Equal", 0, 4),
    Sketcher.Constraint("Symmetric", 0, 3, 4, 3, -2),
    Sketcher.Constraint("Radius", 1, Q("0.2 mm")),
    Sketcher.Constraint("DistanceX", 0, 3, -1, 1, Q("24 mm")),
    Sketcher.Constraint("DistanceY", 0, 3, -1, 1, Q("12 mm")),
    Sketcher.Constraint("DistanceY", 1, 2, -1, 1, Q("17 mm")),
    Sketcher.Constraint("Radius", 0, Q("5.3852 mm")),
    Sketcher.Constraint("DistanceY", 4, 1, -1, 1, Q("12.75 mm")),
])
pad3 = body.newObject("PartDesign::Pad", "Pad002")
pad3.Profile = sketch17
pad3.Length = 12.8571
pad3.Midplane = True

doc.recompute()
